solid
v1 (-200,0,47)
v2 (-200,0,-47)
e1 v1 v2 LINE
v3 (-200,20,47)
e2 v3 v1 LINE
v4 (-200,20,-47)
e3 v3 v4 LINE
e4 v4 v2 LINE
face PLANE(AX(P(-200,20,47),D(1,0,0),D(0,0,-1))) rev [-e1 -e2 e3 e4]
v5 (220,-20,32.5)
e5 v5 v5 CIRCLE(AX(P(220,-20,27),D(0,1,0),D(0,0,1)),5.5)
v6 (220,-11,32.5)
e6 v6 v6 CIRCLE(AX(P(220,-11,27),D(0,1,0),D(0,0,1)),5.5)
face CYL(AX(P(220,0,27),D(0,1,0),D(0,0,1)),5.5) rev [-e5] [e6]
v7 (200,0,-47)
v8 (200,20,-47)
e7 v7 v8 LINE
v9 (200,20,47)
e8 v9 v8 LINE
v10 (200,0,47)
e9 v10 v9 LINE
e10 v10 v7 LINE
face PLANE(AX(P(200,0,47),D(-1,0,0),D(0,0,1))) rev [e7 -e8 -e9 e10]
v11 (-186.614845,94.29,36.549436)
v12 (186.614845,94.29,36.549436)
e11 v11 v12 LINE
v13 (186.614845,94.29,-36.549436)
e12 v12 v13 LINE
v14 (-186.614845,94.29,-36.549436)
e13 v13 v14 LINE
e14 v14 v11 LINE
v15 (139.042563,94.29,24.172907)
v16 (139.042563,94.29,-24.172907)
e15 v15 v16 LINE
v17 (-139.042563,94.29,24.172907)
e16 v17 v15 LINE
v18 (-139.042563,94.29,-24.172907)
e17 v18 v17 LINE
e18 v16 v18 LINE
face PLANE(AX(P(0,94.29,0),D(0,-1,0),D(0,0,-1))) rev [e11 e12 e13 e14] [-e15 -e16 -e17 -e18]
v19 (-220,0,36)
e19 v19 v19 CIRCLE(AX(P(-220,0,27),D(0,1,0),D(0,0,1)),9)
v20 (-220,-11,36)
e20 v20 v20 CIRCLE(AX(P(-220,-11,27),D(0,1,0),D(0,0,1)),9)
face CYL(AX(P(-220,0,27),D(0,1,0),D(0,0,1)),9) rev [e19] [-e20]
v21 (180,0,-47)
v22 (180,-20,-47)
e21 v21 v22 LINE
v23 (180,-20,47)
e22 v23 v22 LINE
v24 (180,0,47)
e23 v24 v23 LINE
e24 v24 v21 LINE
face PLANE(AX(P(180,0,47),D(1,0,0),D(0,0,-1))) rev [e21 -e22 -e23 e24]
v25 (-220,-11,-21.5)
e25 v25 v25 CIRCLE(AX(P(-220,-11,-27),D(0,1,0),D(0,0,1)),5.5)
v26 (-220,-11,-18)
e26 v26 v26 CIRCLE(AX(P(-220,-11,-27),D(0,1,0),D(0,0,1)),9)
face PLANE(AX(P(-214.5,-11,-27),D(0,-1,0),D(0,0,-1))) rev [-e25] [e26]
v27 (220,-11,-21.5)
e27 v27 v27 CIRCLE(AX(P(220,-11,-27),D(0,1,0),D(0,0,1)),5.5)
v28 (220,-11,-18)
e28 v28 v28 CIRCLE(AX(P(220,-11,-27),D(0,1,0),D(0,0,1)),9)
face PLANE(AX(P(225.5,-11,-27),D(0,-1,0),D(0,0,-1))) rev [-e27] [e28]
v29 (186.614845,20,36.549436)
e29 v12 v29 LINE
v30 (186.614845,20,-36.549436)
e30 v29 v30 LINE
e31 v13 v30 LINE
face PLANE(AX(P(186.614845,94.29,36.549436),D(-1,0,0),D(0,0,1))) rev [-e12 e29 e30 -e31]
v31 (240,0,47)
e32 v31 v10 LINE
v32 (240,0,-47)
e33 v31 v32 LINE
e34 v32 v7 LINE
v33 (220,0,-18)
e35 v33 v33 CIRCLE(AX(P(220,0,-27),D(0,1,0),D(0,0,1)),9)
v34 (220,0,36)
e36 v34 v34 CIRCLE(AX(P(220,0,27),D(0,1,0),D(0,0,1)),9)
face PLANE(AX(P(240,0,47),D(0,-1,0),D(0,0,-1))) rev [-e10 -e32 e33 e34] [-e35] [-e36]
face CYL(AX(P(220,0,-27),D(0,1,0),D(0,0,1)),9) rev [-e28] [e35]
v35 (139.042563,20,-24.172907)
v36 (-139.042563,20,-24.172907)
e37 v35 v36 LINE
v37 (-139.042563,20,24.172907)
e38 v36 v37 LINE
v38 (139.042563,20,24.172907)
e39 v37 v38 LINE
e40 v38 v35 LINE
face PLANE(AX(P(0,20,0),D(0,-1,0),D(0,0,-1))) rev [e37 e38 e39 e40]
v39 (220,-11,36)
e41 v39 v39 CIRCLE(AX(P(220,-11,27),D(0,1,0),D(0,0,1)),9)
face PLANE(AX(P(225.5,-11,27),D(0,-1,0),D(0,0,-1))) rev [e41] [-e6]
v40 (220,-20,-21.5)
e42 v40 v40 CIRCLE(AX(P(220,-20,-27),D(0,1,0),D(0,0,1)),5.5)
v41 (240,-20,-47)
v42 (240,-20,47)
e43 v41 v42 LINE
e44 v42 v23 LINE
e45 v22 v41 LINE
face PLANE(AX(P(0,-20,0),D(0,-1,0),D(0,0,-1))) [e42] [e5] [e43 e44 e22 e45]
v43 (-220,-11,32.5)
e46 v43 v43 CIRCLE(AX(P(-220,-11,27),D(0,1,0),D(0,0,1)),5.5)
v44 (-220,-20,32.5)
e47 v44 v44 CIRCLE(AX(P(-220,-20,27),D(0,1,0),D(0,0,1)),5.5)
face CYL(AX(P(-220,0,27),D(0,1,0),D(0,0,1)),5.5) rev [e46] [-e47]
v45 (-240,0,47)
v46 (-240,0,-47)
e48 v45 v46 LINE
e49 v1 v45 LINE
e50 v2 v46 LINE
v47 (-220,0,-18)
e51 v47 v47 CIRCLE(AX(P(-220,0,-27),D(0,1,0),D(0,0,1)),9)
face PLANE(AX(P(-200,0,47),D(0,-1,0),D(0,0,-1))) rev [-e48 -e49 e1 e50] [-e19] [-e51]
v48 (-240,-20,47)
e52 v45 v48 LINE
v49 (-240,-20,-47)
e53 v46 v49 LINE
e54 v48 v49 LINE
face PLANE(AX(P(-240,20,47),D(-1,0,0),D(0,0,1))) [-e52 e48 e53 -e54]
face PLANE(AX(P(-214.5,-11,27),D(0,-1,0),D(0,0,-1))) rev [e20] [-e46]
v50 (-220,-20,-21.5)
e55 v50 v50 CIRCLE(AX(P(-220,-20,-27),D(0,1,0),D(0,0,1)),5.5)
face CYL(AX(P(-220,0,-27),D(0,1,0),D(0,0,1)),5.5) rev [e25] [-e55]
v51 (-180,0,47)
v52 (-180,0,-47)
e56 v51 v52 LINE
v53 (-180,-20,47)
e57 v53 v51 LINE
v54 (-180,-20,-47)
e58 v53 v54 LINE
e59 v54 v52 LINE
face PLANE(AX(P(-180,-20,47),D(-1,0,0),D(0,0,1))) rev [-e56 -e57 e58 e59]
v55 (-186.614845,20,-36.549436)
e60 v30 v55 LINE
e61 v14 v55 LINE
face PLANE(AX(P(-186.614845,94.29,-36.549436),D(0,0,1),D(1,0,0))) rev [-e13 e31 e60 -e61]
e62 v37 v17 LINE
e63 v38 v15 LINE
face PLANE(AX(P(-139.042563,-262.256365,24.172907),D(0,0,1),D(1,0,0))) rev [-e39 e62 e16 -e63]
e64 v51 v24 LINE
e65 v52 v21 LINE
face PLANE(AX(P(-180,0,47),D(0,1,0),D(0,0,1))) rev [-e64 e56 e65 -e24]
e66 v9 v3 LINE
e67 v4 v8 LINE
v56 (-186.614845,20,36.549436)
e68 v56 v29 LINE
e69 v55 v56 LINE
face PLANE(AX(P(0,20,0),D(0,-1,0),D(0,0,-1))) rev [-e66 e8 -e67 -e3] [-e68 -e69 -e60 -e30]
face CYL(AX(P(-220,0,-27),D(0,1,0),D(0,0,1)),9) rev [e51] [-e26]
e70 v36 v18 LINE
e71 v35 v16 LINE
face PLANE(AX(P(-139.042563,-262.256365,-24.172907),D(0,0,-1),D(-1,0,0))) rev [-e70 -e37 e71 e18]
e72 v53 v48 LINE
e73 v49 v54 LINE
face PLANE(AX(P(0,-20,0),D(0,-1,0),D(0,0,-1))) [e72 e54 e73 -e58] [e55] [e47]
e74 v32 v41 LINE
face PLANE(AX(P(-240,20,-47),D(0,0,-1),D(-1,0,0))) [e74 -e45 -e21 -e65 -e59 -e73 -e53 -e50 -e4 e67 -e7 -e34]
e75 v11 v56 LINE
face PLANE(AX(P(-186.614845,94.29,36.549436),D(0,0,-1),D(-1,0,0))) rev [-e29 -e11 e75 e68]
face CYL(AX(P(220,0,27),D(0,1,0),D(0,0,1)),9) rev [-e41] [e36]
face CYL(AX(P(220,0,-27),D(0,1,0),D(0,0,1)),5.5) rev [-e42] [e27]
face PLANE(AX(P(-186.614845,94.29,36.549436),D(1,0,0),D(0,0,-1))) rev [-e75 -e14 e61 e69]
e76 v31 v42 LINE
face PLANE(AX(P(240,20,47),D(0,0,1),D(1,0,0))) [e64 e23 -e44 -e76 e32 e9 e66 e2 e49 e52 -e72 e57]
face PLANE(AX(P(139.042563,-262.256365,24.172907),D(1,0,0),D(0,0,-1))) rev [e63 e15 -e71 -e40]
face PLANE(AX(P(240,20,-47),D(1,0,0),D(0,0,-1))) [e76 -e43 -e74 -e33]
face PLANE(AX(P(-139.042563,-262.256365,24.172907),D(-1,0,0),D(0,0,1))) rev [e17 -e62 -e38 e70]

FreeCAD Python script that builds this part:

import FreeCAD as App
import Part
import Sketcher

doc = App.newDocument("Part")
body = doc.addObject("PartDesign::Body", "Body")

# Sketch on XZ plane
sketch1 = body.newObject("Sketcher::SketchObject", "Sketch")
sketch1.AttachmentSupport = (doc.getObject("XZ_Plane"), [""])
sketch1.MapMode = "FlatFace"
sketch1.AttachmentOffset = App.Placement(App.Vector(0, 0, 20), App.Rotation())
sketch1.addGeometry(Part.LineSegment(App.Vector(-240, 47, 0), App.Vector(-240, -47, 0)), False)
sketch1.addGeometry(Part.LineSegment(App.Vector(-240, -47, 0), App.Vector(240, -47, 0)), False)
sketch1.addGeometry(Part.LineSegment(App.Vector(240, -47, 0), App.Vector(240, 47, 0)), False)
sketch1.addGeometry(Part.LineSegment(App.Vector(240, 47, 0), App.Vector(-240, 47, 0)), False)
sketch1.addConstraint(Sketcher.Constraint("Coincident", 0, 2, 1, 1))
sketch1.addConstraint(Sketcher.Constraint("Coincident", 1, 2, 2, 1))
sketch1.addConstraint(Sketcher.Constraint("Coincident", 2, 2, 3, 1))
sketch1.addConstraint(Sketcher.Constraint("Coincident", 3, 2, 0, 1))
sketch1.addConstraint(Sketcher.Constraint("Vertical", 0))
sketch1.addConstraint(Sketcher.Constraint("Horizontal", 1))
sketch1.addConstraint(Sketcher.Constraint("Vertical", 2))
sketch1.addConstraint(Sketcher.Constraint("Horizontal", 3))
sketch1.addConstraint(Sketcher.Constraint("Symmetric", 0, 2, 2, 2, -1, 1))
sketch1.addConstraint(Sketcher.Constraint("DistanceX", 1, 1, 1, 2, 480.0))
sketch1.addConstraint(Sketcher.Constraint("DistanceY", 0, 2, 0, 1, 94.0))
pad1 = body.newObject("PartDesign::Pad", "Pad")
pad1.Profile = sketch1
pad1.Length = 40
pad1.Reversed = True

# Sketch on XY plane
sketch2 = body.newObject("Sketcher::SketchObject", "Sketch001")
sketch2.AttachmentSupport = (doc.getObject("XY_Plane"), [""])
sketch2.MapMode = "FlatFace"
sketch2.AttachmentOffset = App.Placement(App.Vector(0, 0, -47), App.Rotation())
sketch2.addGeometry(Part.LineSegment(App.Vector(-200, 20, 0), App.Vector(-200, 0, 0)), False)
sketch2.addGeometry(Part.LineSegment(App.Vector(-200, 0, 0), App.Vector(-240, 0, 0)), False)
sketch2.addGeometry(Part.LineSegment(App.Vector(-240, 0, 0), App.Vector(-240, 20, 0)), False)
sketch2.addGeometry(Part.LineSegment(App.Vector(-240, 20, 0), App.Vector(-200, 20, 0)), False)
sketch2.addConstraint(Sketcher.Constraint("Coincident", 0, 2, 1, 1))
sketch2.addConstraint(Sketcher.Constraint("Coincident", 1, 2, 2, 1))
sketch2.addConstraint(Sketcher.Constraint("Coincident", 2, 2, 3, 1))
sketch2.addConstraint(Sketcher.Constraint("Coincident", 3, 2, 0, 1))
sketch2.addConstraint(Sketcher.Constraint("Vertical", 0))
sketch2.addConstraint(Sketcher.Constraint("Horizontal", 1))
sketch2.addConstraint(Sketcher.Constraint("Vertical", 2))
sketch2.addConstraint(Sketcher.Constraint("Horizontal", 3))
sketch2.addConstraint(Sketcher.Constraint("PointOnObject", 0, 2, -1))
sketch2.addConstraint(Sketcher.Constraint("DistanceX", 1, 2, 1, 1, 40.0))
sketch2.addConstraint(Sketcher.Constraint("DistanceY", 0, 2, 0, 1, 20.0))
sketch2.addConstraint(Sketcher.Constraint("DistanceX", 0, 2, -1, 1, 200.0))
pocket1 = body.newObject("PartDesign::Pocket", "Pocket")
pocket1.Profile = sketch2
pocket1.Type = "ThroughAll"
pocket1.Reversed = True

# Sketch on XY plane
sketch3 = body.newObject("Sketcher::SketchObject", "Sketch002")
sketch3.AttachmentSupport = (doc.getObject("XY_Plane"), [""])
sketch3.MapMode = "FlatFace"
sketch3.AttachmentOffset = App.Placement(App.Vector(0, 0, -47), App.Rotation())
sketch3.addGeometry(Part.LineSegment(App.Vector(180, 0, 0), App.Vector(180, -20, 0)), False)
sketch3.addGeometry(Part.LineSegment(App.Vector(180, -20, 0), App.Vector(-180, -20, 0)), False)
sketch3.addGeometry(Part.LineSegment(App.Vector(-180, -20, 0), App.Vector(-180, 0, 0)), False)
sketch3.addGeometry(Part.LineSegment(App.Vector(-180, 0, 0), App.Vector(180, 0, 0)), False)
sketch3.addConstraint(Sketcher.Constraint("Coincident", 0, 2, 1, 1))
sketch3.addConstraint(Sketcher.Constraint("Coincident", 1, 2, 2, 1))
sketch3.addConstraint(Sketcher.Constraint("Coincident", 2, 2, 3, 1))
sketch3.addConstraint(Sketcher.Constraint("Coincident", 3, 2, 0, 1))
sketch3.addConstraint(Sketcher.Constraint("Vertical", 0))
sketch3.addConstraint(Sketcher.Constraint("Horizontal", 1))
sketch3.addConstraint(Sketcher.Constraint("Vertical", 2))
sketch3.addConstraint(Sketcher.Constraint("Horizontal", 3))
sketch3.addConstraint(Sketcher.Constraint("Symmetric", 2, 2, 3, 2, -1, 1))
sketch3.addConstraint(Sketcher.Constraint("DistanceX", 1, 2, 1, 1, 360.0))
sketch3.addConstraint(Sketcher.Constraint("DistanceY", 0, 2, 0, 1, 20.0))
pocket2 = body.newObject("PartDesign::Pocket", "Pocket001")
pocket2.Profile = sketch3
pocket2.Type = "ThroughAll"
pocket2.Reversed = True

# Sketch on XY plane
sketch4 = body.newObject("Sketcher::SketchObject", "Sketch003")
sketch4.AttachmentSupport = (doc.getObject("XY_Plane"), [""])
sketch4.MapMode = "FlatFace"
sketch4.AttachmentOffset = App.Placement(App.Vector(0, 0, -47), App.Rotation())
sketch4.addGeometry(Part.LineSegment(App.Vector(240, 20, 0), App.Vector(240, 0, 0)), False)
sketch4.addGeometry(Part.LineSegment(App.Vector(240, 0, 0), App.Vector(200, 0, 0)), False)
sketch4.addGeometry(Part.LineSegment(App.Vector(200, 0, 0), App.Vector(200, 20, 0)), False)
sketch4.addGeometry(Part.LineSegment(App.Vector(200, 20, 0), App.Vector(240, 20, 0)), False)
sketch4.addConstraint(Sketcher.Constraint("Coincident", 0, 2, 1, 1))
sketch4.addConstraint(Sketcher.Constraint("Coincident", 1, 2, 2, 1))
sketch4.addConstraint(Sketcher.Constraint("Coincident", 2, 2, 3, 1))
sketch4.addConstraint(Sketcher.Constraint("Coincident", 3, 2, 0, 1))
sketch4.addConstraint(Sketcher.Constraint("Vertical", 0))
sketch4.addConstraint(Sketcher.Constraint("Horizontal", 1))
sketch4.addConstraint(Sketcher.Constraint("Vertical", 2))
sketch4.addConstraint(Sketcher.Constraint("Horizontal", 3))
sketch4.addConstraint(Sketcher.Constraint("PointOnObject", 0, 2, -1))
sketch4.addConstraint(Sketcher.Constraint("DistanceX", 1, 2, 1, 1, 40.0))
sketch4.addConstraint(Sketcher.Constraint("DistanceY", 0, 2, 0, 1, 20.0))
sketch4.addConstraint(Sketcher.Constraint("DistanceX", -1, 1, 0, 2, 240.0))
pocket3 = body.newObject("PartDesign::Pocket", "Pocket002")
pocket3.Profile = sketch4
pocket3.Type = "ThroughAll"
pocket3.Reversed = True

# Sketch on XZ plane
sketch5 = body.newObject("Sketcher::SketchObject", "Sketch004")
sketch5.AttachmentSupport = (doc.getObject("XZ_Plane"), [""])
sketch5.MapMode = "FlatFace"
sketch5.addGeometry(Part.Circle(App.Vector(220, 27, 0), App.Vector(0, 0, 1), 6), False)
sketch5.addGeometry(Part.Circle(App.Vector(220, -27, 0), App.Vector(0, 0, 1), 6), False)
sketch5.addGeometry(Part.Circle(App.Vector(-220, 27, 0), App.Vector(0, 0, 1), 6), False)
sketch5.addGeometry(Part.Circle(App.Vector(-220, -27, 0), App.Vector(0, 0, 1), 6), False)
sketch5.addConstraint(Sketcher.Constraint("Equal", 0, 1))
sketch5.addConstraint(Sketcher.Constraint("Equal", 1, 2))
sketch5.addConstraint(Sketcher.Constraint("Equal", 2, 3))
sketch5.addConstraint(Sketcher.Constraint("Symmetric", 1, 3, 2, 3, -1, 1))
sketch5.addConstraint(Sketcher.Constraint("Symmetric", 0, 3, 3, 3, -1, 1))
sketch5.addConstraint(Sketcher.Constraint("Symmetric", 0, 3, 2, 3, -2))
sketch5.addConstraint(Sketcher.Constraint("Diameter", 0, 11.0))
sketch5.addConstraint(Sketcher.Constraint("DistanceX", -1, 1, 0, 3, 220.0))
sketch5.addConstraint(Sketcher.Constraint("DistanceY", -1, 1, 0, 3, 27.0))
doc.recompute()
hole = body.newObject("PartDesign::Hole", "Hole")
hole.Profile = sketch5
hole.ThreadType = "None"
hole.Diameter = 11
hole.DepthType = "ThroughAll"
hole.HoleCutType = "Counterbore"
hole.HoleCutDiameter = 18
hole.HoleCutDepth = 11
hole.Reversed = True

# Sketch on XZ plane
sketch6 = body.newObject("Sketcher::SketchObject", "Sketch005")
sketch6.AttachmentSupport = (doc.getObject("XZ_Plane"), [""])
sketch6.MapMode = "FlatFace"
sketch6.AttachmentOffset = App.Placement(App.Vector(0, 0, -20), App.Rotation())
sketch6.addGeometry(Part.LineSegment(App.Vector(-187, -37, 0), App.Vector(-187, 37, 0)), False)
sketch6.addGeometry(Part.LineSegment(App.Vector(-187, 37, 0), App.Vector(187, 37, 0)), False)
sketch6.addGeometry(Part.LineSegment(App.Vector(187, 37, 0), App.Vector(187, -37, 0)), False)
sketch6.addGeometry(Part.LineSegment(App.Vector(187, -37, 0), App.Vector(-187, -37, 0)), False)
sketch6.addConstraint(Sketcher.Constraint("Coincident", 0, 2, 1, 1))
sketch6.addConstraint(Sketcher.Constraint("Coincident", 1, 2, 2, 1))
sketch6.addConstraint(Sketcher.Constraint("Coincident", 2, 2, 3, 1))
sketch6.addConstraint(Sketcher.Constraint("Coincident", 3, 2, 0, 1))
sketch6.addConstraint(Sketcher.Constraint("Vertical", 0))
sketch6.addConstraint(Sketcher.Constraint("Horizontal", 1))
sketch6.addConstraint(Sketcher.Constraint("Vertical", 2))
sketch6.addConstraint(Sketcher.Constraint("Horizontal", 3))
sketch6.addConstraint(Sketcher.Constraint("Symmetric", 0, 2, 2, 2, -1, 1))
sketch6.addConstraint(Sketcher.Constraint("DistanceX", 1, 1, 1, 2, 373.22969))
sketch6.addConstraint(Sketcher.Constraint("DistanceY", 0, 1, 0, 2, 73.098872))
pad2 = body.newObject("PartDesign::Pad", "Pad001")
pad2.Profile = sketch6
pad2.Length = 74.29
pad2.Reversed = True

# Sketch on XZ plane
sketch7 = body.newObject("Sketcher::SketchObject", "Sketch006")
sketch7.AttachmentSupport = (doc.getObject("XZ_Plane"), [""])
sketch7.MapMode = "FlatFace"
sketch7.AttachmentOffset = App.Placement(App.Vector(0, 0, -94.29), App.Rotation())
sketch7.addGeometry(Part.LineSegment(App.Vector(-139, -24, 0), App.Vector(-139, 24, 0)), False)
sketch7.addGeometry(Part.LineSegment(App.Vector(-139, 24, 0), App.Vector(139, 24, 0)), False)
sketch7.addGeometry(Part.LineSegment(App.Vector(139, 24, 0), App.Vector(139, -24, 0)), False)
sketch7.addGeometry(Part.LineSegment(App.Vector(139, -24, 0), App.Vector(-139, -24, 0)), False)
sketch7.addConstraint(Sketcher.Constraint("Coincident", 0, 2, 1, 1))
sketch7.addConstraint(Sketcher.Constraint("Coincident", 1, 2, 2, 1))
sketch7.addConstraint(Sketcher.Constraint("Coincident", 2, 2, 3, 1))
sketch7.addConstraint(Sketcher.Constraint("Coincident", 3, 2, 0, 1))
sketch7.addConstraint(Sketcher.Constraint("Vertical", 0))
sketch7.addConstraint(Sketcher.Constraint("Horizontal", 1))
sketch7.addConstraint(Sketcher.Constraint("Vertical", 2))
sketch7.addConstraint(Sketcher.Constraint("Horizontal", 3))
sketch7.addConstraint(Sketcher.Constraint("Symmetric", 0, 2, 2, 2, -1, 1))
sketch7.addConstraint(Sketcher.Constraint("DistanceX", 1, 1, 1, 2, 278.085127))
sketch7.addConstraint(Sketcher.Constraint("DistanceY", 0, 1, 0, 2, 48.345815))
pocket4 = body.newObject("PartDesign::Pocket", "Pocket003")
pocket4.Profile = sketch7
pocket4.Length = 74.29
pocket4.Reversed = True

doc.recompute()
